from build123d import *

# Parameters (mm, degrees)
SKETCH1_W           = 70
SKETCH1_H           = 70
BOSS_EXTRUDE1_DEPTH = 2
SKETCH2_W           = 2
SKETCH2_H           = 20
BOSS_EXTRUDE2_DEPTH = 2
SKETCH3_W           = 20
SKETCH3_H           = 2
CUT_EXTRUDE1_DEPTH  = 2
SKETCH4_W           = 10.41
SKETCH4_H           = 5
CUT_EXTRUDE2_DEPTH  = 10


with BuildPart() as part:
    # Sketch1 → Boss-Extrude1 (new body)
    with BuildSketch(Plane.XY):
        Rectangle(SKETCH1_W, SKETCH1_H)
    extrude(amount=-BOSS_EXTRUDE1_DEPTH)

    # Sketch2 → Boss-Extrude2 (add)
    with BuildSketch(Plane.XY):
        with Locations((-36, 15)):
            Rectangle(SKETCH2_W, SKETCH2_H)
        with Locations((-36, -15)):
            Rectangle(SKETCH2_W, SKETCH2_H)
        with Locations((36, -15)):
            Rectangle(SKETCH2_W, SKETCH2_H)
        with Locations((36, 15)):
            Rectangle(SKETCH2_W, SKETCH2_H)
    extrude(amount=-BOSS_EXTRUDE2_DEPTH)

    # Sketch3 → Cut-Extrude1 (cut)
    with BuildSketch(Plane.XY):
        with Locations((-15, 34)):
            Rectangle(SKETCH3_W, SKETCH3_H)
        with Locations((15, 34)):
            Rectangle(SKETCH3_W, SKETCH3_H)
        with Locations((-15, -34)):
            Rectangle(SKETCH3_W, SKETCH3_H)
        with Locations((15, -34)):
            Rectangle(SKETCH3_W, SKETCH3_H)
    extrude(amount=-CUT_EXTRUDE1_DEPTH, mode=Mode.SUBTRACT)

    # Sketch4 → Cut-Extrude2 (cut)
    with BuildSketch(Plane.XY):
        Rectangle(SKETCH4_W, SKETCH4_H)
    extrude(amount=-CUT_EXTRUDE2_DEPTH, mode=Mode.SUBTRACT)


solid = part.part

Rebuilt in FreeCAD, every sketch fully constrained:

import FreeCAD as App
import Part
import Sketcher
Q = App.Units.Quantity


def add_polygon(sketch, points):
    """Adds a closed chain of lines whose ends are joined by coincident constraints."""
    first, n = sketch.GeometryCount, len(points)
    for a, b in zip(points, points[1:] + points[:1]):
        sketch.addGeometry(Part.LineSegment(App.Vector(*a, 0), App.Vector(*b, 0)), False)
    for i in range(n):
        sketch.addConstraint(Sketcher.Constraint("Coincident", first + i, 2, first + (i + 1) % n, 1))

doc = App.newDocument("Part")
body = doc.addObject("PartDesign::Body", "Body")

# Sketch on XY plane
sketch1 = body.newObject("Sketcher::SketchObject", "Sketch")
sketch1.AttachmentSupport = (doc.getObject("XY_Plane"), [""])
sketch1.MapMode = "FlatFace"
add_polygon(sketch1, [(-35, 35), (-35, -35), (35, -35), (35, 35)])  # lines 0-3
sketch1.addConstraint([
    Sketcher.Constraint("Vertical", 0),
    Sketcher.Constraint("Horizontal", 1),
    Sketcher.Constraint("Vertical", 2),
    Sketcher.Constraint("Horizontal", 3),
    Sketcher.Constraint("Symmetric", 0, 2, 2, 2, -1, 1),
    Sketcher.Constraint("Equal", 3, 0),
    Sketcher.Constraint("DistanceX", 1, 1, 1, 2, Q("70 mm")),
])
pad1 = body.newObject("PartDesign::Pad", "Pad")
pad1.Profile = sketch1
pad1.Length = 2
pad1.Reversed = True

# Sketch on XY plane
sketch2 = body.newObject("Sketcher::SketchObject", "Sketch001")
sketch2.AttachmentSupport = (doc.getObject("XY_Plane"), [""])
sketch2.MapMode = "FlatFace"
add_polygon(sketch2, [(-37, 25), (-37, 5), (-35, 5), (-35, 25)])  # lines 0-3
add_polygon(sketch2, [(-37, -5), (-37, -25), (-35, -25), (-35, -5)])  # lines 4-7
add_polygon(sketch2, [(35, -5), (35, -25), (37, -25), (37, -5)])  # lines 8-11
add_polygon(sketch2, [(35, 25), (35, 5), (37, 5), (37, 25)])  # lines 12-15
sketch2.addConstraint([
    Sketcher.Constraint("Vertical", 0),
    Sketcher.Constraint("Horizontal", 1),
    Sketcher.Constraint("Vertical", 2),
    Sketcher.Constraint("Horizontal", 3),
    Sketcher.Constraint("Vertical", 4),
    Sketcher.Constraint("Horizontal", 5),
    Sketcher.Constraint("Vertical", 6),
    Sketcher.Constraint("Horizontal", 7),
    Sketcher.Constraint("Vertical", 8),
    Sketcher.Constraint("Horizontal", 9),
    Sketcher.Constraint("Vertical", 10),
    Sketcher.Constraint("Horizontal", 11),
    Sketcher.Constraint("Vertical", 12),
    Sketcher.Constraint("Horizontal", 13),
    Sketcher.Constraint("Vertical", 14),
    Sketcher.Constraint("Horizontal", 15),
    Sketcher.Constraint("Symmetric", 2, 2, 8, 2, -1, 1),
    Sketcher.Constraint("Symmetric", 0, 2, 10, 2, -1, 1),
    Sketcher.Constraint("Symmetric", 6, 2, 12, 2, -1, 1),
    Sketcher.Constraint("Symmetric", 4, 2, 14, 2, -1, 1),
    Sketcher.Constraint("Symmetric", 5, 2, 8, 2, -2),
    Sketcher.Constraint("Symmetric", 7, 2, 10, 2, -2),
    Sketcher.Constraint("DistanceX", 1, 1, 1, 2, Q("2 mm")),
    Sketcher.Constraint("DistanceY", 0, 2, 0, 1, Q("20 mm")),
    Sketcher.Constraint("DistanceX", 0, 2, -1, 1, Q("37 mm")),
    Sketcher.Constraint("DistanceY", -1, 1, 0, 2, Q("5 mm")),
])
pad2 = body.newObject("PartDesign::Pad", "Pad001")
pad2.Profile = sketch2
pad2.Length = 2
pad2.Reversed = True

# Sketch on XY plane
sketch3 = body.newObject("Sketcher::SketchObject", "Sketch002")
sketch3.AttachmentSupport = (doc.getObject("XY_Plane"), [""])
sketch3.MapMode = "FlatFace"
add_polygon(sketch3, [(-25, 35), (-25, 33), (-5, 33), (-5, 35)])  # lines 0-3
add_polygon(sketch3, [(5, 35), (5, 33), (25, 33), (25, 35)])  # lines 4-7
add_polygon(sketch3, [(-25, -33), (-25, -35), (-5, -35), (-5, -33)])  # lines 8-11
add_polygon(sketch3, [(5, -33), (5, -35), (25, -35), (25, -33)])  # lines 12-15
sketch3.addConstraint([
    Sketcher.Constraint("Vertical", 0),
    Sketcher.Constraint("Horizontal", 1),
    Sketcher.Constraint("Vertical", 2),
    Sketcher.Constraint("Horizontal", 3),
    Sketcher.Constraint("Vertical", 4),
    Sketcher.Constraint("Horizontal", 5),
    Sketcher.Constraint("Vertical", 6),
    Sketcher.Constraint("Horizontal", 7),
    Sketcher.Constraint("Vertical", 8),
    Sketcher.Constraint("Horizontal", 9),
    Sketcher.Constraint("Vertical", 10),
    Sketcher.Constraint("Horizontal", 11),
    Sketcher.Constraint("Vertical", 12),
    Sketcher.Constraint("Horizontal", 13),
    Sketcher.Constraint("Vertical", 14),
    Sketcher.Constraint("Horizontal", 15),
    Sketcher.Constraint("Symmetric", 6, 2, 8, 2, -1, 1),
    Sketcher.Constraint("Symmetric", 4, 2, 10, 2, -1, 1),
    Sketcher.Constraint("Symmetric", 2, 2, 12, 2, -1, 1),
    Sketcher.Constraint("Symmetric", 0, 2, 14, 2, -1, 1),
    Sketcher.Constraint("Symmetric", 1, 2, 4, 2, -2),
    Sketcher.Constraint("Symmetric", 3, 2, 6, 2, -2),
    Sketcher.Constraint("DistanceX", 1, 1, 1, 2, Q("20 mm")),
    Sketcher.Constraint("DistanceY", 0, 2, 0, 1, Q("2 mm")),
    Sketcher.Constraint("DistanceX", 0, 2, -1, 1, Q("25 mm")),
    Sketcher.Constraint("DistanceY", -1, 1, 0, 2, Q("33 mm")),
])
pocket1 = body.newObject("PartDesign::Pocket", "Pocket")
pocket1.Profile = sketch3
pocket1.Length = 2

# Sketch on XY plane
sketch4 = body.newObject("Sketcher::SketchObject", "Sketch003")
sketch4.AttachmentSupport = (doc.getObject("XY_Plane"), [""])
sketch4.MapMode = "FlatFace"
add_polygon(sketch4, [(-5, 2), (-5, -2), (5, -2), (5, 2)])  # lines 0-3
sketch4.addConstraint([
    Sketcher.Constraint("Vertical", 0),
    Sketcher.Constraint("Horizontal", 1),
    Sketcher.Constraint("Vertical", 2),
    Sketcher.Constraint("Horizontal", 3),
    Sketcher.Constraint("Symmetric", 0, 2, 2, 2, -1, 1),
    Sketcher.Constraint("DistanceY", 0, 2, 0, 1, Q("5 mm")),
    Sketcher.Constraint("DistanceX", 1, 1, 1, 2, Q("10.41 mm")),
])
pocket2 = body.newObject("PartDesign::Pocket", "Pocket001")
pocket2.Profile = sketch4
pocket2.Length = 10

doc.recompute()
